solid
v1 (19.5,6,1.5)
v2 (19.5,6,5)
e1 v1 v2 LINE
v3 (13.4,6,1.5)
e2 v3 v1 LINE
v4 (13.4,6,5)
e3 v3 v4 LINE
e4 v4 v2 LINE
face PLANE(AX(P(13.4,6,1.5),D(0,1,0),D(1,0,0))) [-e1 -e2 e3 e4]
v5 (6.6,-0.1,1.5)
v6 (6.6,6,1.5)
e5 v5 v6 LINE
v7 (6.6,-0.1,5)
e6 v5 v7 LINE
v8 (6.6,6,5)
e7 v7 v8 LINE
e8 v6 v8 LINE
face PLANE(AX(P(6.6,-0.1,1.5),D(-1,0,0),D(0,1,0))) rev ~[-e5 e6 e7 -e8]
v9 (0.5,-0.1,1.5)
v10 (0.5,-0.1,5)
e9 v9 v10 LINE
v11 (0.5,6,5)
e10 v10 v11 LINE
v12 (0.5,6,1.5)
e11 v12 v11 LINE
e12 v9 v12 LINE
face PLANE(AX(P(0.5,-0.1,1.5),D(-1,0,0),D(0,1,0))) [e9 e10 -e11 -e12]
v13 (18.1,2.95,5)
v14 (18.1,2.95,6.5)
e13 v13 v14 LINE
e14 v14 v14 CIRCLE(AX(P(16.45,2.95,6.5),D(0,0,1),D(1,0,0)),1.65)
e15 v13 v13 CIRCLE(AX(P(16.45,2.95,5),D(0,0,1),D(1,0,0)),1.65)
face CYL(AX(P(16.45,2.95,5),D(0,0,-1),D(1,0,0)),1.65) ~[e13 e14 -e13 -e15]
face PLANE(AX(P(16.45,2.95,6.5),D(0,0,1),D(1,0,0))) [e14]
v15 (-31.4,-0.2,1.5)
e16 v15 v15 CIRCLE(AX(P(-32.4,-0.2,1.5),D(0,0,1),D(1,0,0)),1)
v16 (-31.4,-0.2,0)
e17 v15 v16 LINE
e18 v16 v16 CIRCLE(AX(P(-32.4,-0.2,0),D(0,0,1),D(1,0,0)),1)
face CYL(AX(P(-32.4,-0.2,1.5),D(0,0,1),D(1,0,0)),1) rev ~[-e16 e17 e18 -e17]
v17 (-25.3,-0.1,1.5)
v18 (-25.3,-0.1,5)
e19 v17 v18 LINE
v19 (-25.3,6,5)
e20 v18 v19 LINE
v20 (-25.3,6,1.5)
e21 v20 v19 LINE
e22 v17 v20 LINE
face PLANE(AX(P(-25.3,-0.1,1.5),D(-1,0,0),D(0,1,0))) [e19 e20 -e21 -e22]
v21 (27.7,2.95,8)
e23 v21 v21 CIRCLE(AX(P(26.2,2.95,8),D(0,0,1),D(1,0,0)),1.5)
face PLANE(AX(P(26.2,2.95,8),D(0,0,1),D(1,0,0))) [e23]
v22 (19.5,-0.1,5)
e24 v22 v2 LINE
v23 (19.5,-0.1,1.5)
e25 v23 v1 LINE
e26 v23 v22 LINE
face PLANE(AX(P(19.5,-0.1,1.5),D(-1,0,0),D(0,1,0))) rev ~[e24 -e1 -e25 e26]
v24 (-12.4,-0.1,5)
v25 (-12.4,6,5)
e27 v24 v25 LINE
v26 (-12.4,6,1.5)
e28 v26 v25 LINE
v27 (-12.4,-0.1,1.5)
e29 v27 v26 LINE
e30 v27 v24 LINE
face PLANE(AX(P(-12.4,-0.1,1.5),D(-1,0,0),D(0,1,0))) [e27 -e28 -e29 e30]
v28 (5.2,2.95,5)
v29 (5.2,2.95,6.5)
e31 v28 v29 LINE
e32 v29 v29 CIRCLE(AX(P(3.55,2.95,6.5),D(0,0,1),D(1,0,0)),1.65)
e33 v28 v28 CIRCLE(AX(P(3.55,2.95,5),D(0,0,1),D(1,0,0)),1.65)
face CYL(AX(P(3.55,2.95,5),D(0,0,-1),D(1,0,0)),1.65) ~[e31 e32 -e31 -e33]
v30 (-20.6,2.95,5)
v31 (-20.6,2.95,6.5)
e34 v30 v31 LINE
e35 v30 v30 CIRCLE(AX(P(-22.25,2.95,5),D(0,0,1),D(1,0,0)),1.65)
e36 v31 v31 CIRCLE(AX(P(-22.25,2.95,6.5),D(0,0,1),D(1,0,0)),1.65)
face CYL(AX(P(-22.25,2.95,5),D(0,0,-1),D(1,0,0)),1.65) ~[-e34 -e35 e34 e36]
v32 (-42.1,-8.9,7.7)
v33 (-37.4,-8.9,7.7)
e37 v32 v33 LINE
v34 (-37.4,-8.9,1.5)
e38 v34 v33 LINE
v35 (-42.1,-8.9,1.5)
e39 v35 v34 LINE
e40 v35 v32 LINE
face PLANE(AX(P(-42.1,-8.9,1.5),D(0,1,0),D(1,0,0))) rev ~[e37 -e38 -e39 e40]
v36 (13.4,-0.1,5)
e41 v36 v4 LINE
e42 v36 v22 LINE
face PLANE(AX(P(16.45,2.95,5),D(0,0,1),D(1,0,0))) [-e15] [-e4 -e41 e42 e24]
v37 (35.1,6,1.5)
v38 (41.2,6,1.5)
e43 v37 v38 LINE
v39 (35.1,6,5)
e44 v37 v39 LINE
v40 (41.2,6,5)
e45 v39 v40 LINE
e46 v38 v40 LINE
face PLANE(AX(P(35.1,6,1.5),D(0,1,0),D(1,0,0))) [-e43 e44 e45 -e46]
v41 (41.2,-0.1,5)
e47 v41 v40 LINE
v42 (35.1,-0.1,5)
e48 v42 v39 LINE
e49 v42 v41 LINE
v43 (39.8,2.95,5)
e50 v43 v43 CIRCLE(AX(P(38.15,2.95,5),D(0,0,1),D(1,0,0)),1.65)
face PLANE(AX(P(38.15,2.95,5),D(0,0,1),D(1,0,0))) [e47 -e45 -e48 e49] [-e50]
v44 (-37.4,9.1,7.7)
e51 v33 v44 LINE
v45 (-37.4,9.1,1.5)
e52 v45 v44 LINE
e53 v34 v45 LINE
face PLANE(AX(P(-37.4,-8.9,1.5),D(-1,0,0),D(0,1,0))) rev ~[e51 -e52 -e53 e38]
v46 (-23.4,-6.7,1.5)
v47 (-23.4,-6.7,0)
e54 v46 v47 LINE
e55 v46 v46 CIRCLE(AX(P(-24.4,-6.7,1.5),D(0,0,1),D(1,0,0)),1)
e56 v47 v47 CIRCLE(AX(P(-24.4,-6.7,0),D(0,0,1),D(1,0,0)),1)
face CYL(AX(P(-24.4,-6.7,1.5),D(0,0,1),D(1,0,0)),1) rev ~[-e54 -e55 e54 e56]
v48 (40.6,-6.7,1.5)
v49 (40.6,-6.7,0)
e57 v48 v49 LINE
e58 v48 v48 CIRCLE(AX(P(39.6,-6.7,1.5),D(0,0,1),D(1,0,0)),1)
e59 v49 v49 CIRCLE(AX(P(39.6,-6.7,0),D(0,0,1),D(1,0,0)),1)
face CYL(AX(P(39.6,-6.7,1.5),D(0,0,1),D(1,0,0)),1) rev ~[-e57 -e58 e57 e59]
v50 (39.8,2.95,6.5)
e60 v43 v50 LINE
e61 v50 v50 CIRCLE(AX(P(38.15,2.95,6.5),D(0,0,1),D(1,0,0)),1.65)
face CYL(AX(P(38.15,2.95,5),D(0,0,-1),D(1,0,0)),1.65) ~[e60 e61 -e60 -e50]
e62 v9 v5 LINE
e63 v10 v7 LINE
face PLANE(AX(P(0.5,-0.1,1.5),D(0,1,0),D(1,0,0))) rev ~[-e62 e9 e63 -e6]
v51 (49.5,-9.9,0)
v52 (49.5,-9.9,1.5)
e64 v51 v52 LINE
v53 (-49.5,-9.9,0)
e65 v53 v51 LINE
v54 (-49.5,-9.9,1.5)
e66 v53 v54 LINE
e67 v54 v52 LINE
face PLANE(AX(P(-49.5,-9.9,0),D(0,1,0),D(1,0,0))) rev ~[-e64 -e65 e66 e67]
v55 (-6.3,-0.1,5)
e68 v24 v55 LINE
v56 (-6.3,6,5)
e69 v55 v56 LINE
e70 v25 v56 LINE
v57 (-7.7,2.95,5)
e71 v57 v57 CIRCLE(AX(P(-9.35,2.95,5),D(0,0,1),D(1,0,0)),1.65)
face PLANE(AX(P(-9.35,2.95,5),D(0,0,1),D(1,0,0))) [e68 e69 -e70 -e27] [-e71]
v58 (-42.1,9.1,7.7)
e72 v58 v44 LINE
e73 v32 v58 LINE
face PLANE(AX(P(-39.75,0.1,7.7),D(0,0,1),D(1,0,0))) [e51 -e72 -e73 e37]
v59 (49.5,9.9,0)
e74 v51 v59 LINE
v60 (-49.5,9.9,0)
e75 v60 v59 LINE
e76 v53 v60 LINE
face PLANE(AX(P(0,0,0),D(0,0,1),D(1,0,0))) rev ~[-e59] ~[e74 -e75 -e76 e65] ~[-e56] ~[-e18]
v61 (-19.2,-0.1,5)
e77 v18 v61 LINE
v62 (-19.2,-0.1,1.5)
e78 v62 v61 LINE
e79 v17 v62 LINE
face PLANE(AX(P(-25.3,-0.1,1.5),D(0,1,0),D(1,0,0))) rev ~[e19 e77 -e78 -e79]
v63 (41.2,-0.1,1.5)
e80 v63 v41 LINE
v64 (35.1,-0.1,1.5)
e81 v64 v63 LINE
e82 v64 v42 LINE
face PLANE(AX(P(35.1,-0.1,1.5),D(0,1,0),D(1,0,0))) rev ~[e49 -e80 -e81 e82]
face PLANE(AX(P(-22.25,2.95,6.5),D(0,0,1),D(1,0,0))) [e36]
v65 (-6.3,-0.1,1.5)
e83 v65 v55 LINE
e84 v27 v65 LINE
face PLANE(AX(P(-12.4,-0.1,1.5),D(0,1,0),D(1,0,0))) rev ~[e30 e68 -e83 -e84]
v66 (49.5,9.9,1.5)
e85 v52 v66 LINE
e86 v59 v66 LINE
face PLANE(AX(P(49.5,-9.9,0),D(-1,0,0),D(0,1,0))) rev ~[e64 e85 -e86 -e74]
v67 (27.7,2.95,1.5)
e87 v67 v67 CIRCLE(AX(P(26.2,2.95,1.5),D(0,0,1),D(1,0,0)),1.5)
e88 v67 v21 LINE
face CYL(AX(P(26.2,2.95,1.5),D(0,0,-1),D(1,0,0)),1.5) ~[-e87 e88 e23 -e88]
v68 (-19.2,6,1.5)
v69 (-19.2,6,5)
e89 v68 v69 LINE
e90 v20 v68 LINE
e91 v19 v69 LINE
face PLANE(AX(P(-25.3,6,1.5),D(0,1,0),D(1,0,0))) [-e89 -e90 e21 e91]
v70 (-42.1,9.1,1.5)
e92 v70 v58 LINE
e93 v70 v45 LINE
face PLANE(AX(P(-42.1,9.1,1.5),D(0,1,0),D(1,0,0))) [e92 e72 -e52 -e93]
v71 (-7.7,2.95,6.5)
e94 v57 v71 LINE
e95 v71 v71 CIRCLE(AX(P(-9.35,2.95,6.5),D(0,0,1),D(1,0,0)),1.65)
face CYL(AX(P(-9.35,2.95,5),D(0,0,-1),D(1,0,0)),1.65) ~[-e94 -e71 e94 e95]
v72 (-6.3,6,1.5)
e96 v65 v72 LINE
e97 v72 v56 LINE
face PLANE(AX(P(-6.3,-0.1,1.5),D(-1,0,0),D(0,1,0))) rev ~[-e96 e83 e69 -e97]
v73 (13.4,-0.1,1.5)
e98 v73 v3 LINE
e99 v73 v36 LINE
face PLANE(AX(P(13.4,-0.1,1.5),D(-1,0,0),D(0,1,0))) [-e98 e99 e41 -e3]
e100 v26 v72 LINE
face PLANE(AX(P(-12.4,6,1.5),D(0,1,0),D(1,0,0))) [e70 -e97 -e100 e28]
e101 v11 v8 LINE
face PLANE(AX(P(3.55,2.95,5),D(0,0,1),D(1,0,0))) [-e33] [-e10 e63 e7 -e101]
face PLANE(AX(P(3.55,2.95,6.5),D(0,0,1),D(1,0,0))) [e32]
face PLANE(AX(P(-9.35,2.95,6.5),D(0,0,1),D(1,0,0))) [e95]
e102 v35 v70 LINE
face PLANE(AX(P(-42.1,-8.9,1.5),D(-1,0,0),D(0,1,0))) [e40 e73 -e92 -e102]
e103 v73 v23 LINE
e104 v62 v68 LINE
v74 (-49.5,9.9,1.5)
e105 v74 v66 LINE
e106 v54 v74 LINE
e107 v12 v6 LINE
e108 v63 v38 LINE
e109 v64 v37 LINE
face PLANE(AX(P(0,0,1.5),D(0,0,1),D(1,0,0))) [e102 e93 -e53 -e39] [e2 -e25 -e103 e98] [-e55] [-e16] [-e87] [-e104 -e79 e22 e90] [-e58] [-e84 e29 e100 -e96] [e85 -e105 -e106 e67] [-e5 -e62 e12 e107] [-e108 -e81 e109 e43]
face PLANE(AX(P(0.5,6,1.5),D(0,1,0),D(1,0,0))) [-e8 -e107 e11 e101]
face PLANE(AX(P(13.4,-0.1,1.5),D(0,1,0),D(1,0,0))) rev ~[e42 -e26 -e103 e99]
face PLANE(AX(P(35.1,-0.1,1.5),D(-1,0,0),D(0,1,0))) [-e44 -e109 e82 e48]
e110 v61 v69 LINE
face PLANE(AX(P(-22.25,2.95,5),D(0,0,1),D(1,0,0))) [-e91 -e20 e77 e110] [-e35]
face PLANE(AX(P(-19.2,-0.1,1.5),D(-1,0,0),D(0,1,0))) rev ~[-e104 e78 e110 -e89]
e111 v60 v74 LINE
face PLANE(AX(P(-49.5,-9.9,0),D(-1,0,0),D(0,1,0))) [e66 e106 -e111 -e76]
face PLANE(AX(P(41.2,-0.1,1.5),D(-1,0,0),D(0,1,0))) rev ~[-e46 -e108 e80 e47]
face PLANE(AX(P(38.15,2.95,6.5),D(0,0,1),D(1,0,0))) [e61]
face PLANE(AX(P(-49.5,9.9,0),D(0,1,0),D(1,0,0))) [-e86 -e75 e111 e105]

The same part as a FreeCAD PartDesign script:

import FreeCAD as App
import Part
import Sketcher
Q = App.Units.Quantity

doc = App.newDocument("Part")
params = doc.addObject("Spreadsheet::Sheet", "Params")
for row, (alias, value) in enumerate([
    ("sketch1_width", "99 mm"),
    ("sketch1_height", "19.8 mm"),
    ("pad1_length", "1.5 mm"),
    ("sketch2_width", "6.1 mm"),
    ("pad2_length", "3.5 mm"),
    ("sketch3_diameter", "3.3 mm"),
    ("pad3_length", "1.5 mm"),
    ("sketch4_diameter", "3 mm"),
    ("pad4_length", "6.5 mm"),
    ("sketch5_height", "18 mm"),
    ("sketch5_width", "4.7 mm"),
    ("pad5_length", "6.2 mm"),
    ("sketch6_diameter", "2 mm"),
], start=1):
    params.set(f"A{row}", alias)
    params.set(f"B{row}", "=" + value)
    params.setAlias(f"B{row}", alias)

body = doc.addObject("PartDesign::Body", "Body")

sketch1 = doc.addObject("Sketcher::SketchObject", "Sketch")
body.addObject(sketch1)
sketch1.AttachmentSupport = (doc.XY_Plane, [""])
sketch1.MapMode = "FlatFace"
sketch1.addGeometry(Part.LineSegment(App.Vector(-50, 10, 0), App.Vector(-50, -10, 0)), False)
sketch1.addGeometry(Part.LineSegment(App.Vector(-50, -10, 0), App.Vector(50, -10, 0)), False)
sketch1.addGeometry(Part.LineSegment(App.Vector(50, -10, 0), App.Vector(50, 10, 0)), False)
sketch1.addGeometry(Part.LineSegment(App.Vector(50, 10, 0), App.Vector(-50, 10, 0)), False)
sketch1.addConstraint(Sketcher.Constraint("Coincident", 0, 2, 1, 1))
sketch1.addConstraint(Sketcher.Constraint("Coincident", 1, 2, 2, 1))
sketch1.addConstraint(Sketcher.Constraint("Coincident", 2, 2, 3, 1))
sketch1.addConstraint(Sketcher.Constraint("Coincident", 3, 2, 0, 1))
sketch1.addConstraint(Sketcher.Constraint("Vertical", 0))
sketch1.addConstraint(Sketcher.Constraint("Horizontal", 1))
sketch1.addConstraint(Sketcher.Constraint("Vertical", 2))
sketch1.addConstraint(Sketcher.Constraint("Horizontal", 3))
sketch1.addConstraint(Sketcher.Constraint("Symmetric", 0, 2, 2, 2, -1, 1))
sketch1.addConstraint(Sketcher.Constraint("DistanceX", 1, 1, 1, 2, Q("99 mm")))
sketch1.addConstraint(Sketcher.Constraint("DistanceY", 0, 2, 0, 1, Q("19.8 mm")))
sketch1.setExpression("Constraints[9]", "Params.sketch1_width")
sketch1.setExpression("Constraints[10]", "Params.sketch1_height")
pad1 = doc.addObject("PartDesign::Pad", "Pad")
body.addObject(pad1)
pad1.Profile = sketch1
pad1.setExpression("Length", "Params.pad1_length")

sketch2 = doc.addObject("Sketcher::SketchObject", "Sketch001")
body.addObject(sketch2)
sketch2.AttachmentSupport = (doc.XY_Plane, [""])
sketch2.MapMode = "FlatFace"
sketch2.AttachmentOffset = App.Placement(App.Vector(0, 0, 1.5), App.Rotation())
sketch2.addGeometry(Part.LineSegment(App.Vector(35, 6, 0), App.Vector(35, 0, 0)), False)
sketch2.addGeometry(Part.LineSegment(App.Vector(35, 0, 0), App.Vector(41, 0, 0)), False)
sketch2.addGeometry(Part.LineSegment(App.Vector(41, 0, 0), App.Vector(41, 6, 0)), False)
sketch2.addGeometry(Part.LineSegment(App.Vector(41, 6, 0), App.Vector(35, 6, 0)), False)
sketch2.addGeometry(Part.LineSegment(App.Vector(13, 6, 0), App.Vector(13, 0, 0)), False)
sketch2.addGeometry(Part.LineSegment(App.Vector(13, 0, 0), App.Vector(20, 0, 0)), False)
sketch2.addGeometry(Part.LineSegment(App.Vector(20, 0, 0), App.Vector(20, 6, 0)), False)
sketch2.addGeometry(Part.LineSegment(App.Vector(20, 6, 0), App.Vector(13, 6, 0)), False)
sketch2.addGeometry(Part.LineSegment(App.Vector(0, 6, 0), App.Vector(0, 0, 0)), False)
sketch2.addGeometry(Part.LineSegment(App.Vector(0, 0, 0), App.Vector(7, 0, 0)), False)
sketch2.addGeometry(Part.LineSegment(App.Vector(7, 0, 0), App.Vector(7, 6, 0)), False)
sketch2.addGeometry(Part.LineSegment(App.Vector(7, 6, 0), App.Vector(0, 6, 0)), False)
sketch2.addGeometry(Part.LineSegment(App.Vector(-12, 6, 0), App.Vector(-12, 0, 0)), False)
sketch2.addGeometry(Part.LineSegment(App.Vector(-12, 0, 0), App.Vector(-6, 0, 0)), False)
sketch2.addGeometry(Part.LineSegment(App.Vector(-6, 0, 0), App.Vector(-6, 6, 0)), False)
sketch2.addGeometry(Part.LineSegment(App.Vector(-6, 6, 0), App.Vector(-12, 6, 0)), False)
sketch2.addGeometry(Part.LineSegment(App.Vector(-25, 6, 0), App.Vector(-25, 0, 0)), False)
sketch2.addGeometry(Part.LineSegment(App.Vector(-25, 0, 0), App.Vector(-19, 0, 0)), False)
sketch2.addGeometry(Part.LineSegment(App.Vector(-19, 0, 0), App.Vector(-19, 6, 0)), False)
sketch2.addGeometry(Part.LineSegment(App.Vector(-19, 6, 0), App.Vector(-25, 6, 0)), False)
sketch2.addConstraint(Sketcher.Constraint("Coincident", 0, 2, 1, 1))
sketch2.addConstraint(Sketcher.Constraint("Coincident", 1, 2, 2, 1))
sketch2.addConstraint(Sketcher.Constraint("Coincident", 2, 2, 3, 1))
sketch2.addConstraint(Sketcher.Constraint("Coincident", 3, 2, 0, 1))
sketch2.addConstraint(Sketcher.Constraint("Coincident", 4, 2, 5, 1))
sketch2.addConstraint(Sketcher.Constraint("Coincident", 5, 2, 6, 1))
sketch2.addConstraint(Sketcher.Constraint("Coincident", 6, 2, 7, 1))
sketch2.addConstraint(Sketcher.Constraint("Coincident", 7, 2, 4, 1))
sketch2.addConstraint(Sketcher.Constraint("Coincident", 8, 2, 9, 1))
sketch2.addConstraint(Sketcher.Constraint("Coincident", 9, 2, 10, 1))
sketch2.addConstraint(Sketcher.Constraint("Coincident", 10, 2, 11, 1))
sketch2.addConstraint(Sketcher.Constraint("Coincident", 11, 2, 8, 1))
sketch2.addConstraint(Sketcher.Constraint("Coincident", 12, 2, 13, 1))
sketch2.addConstraint(Sketcher.Constraint("Coincident", 13, 2, 14, 1))
sketch2.addConstraint(Sketcher.Constraint("Coincident", 14, 2, 15, 1))
sketch2.addConstraint(Sketcher.Constraint("Coincident", 15, 2, 12, 1))
sketch2.addConstraint(Sketcher.Constraint("Coincident", 16, 2, 17, 1))
sketch2.addConstraint(Sketcher.Constraint("Coincident", 17, 2, 18, 1))
sketch2.addConstraint(Sketcher.Constraint("Coincident", 18, 2, 19, 1))
sketch2.addConstraint(Sketcher.Constraint("Coincident", 19, 2, 16, 1))
sketch2.addConstraint(Sketcher.Constraint("Vertical", 0))
sketch2.addConstraint(Sketcher.Constraint("Horizontal", 1))
sketch2.addConstraint(Sketcher.Constraint("Vertical", 2))
sketch2.addConstraint(Sketcher.Constraint("Horizontal", 3))
sketch2.addConstraint(Sketcher.Constraint("Vertical", 4))
sketch2.addConstraint(Sketcher.Constraint("Horizontal", 5))
sketch2.addConstraint(Sketcher.Constraint("Vertical", 6))
sketch2.addConstraint(Sketcher.Constraint("Horizontal", 7))
sketch2.addConstraint(Sketcher.Constraint("Vertical", 8))
sketch2.addConstraint(Sketcher.Constraint("Horizontal", 9))
sketch2.addConstraint(Sketcher.Constraint("Vertical", 10))
sketch2.addConstraint(Sketcher.Constraint("Horizontal", 11))
sketch2.addConstraint(Sketcher.Constraint("Vertical", 12))
sketch2.addConstraint(Sketcher.Constraint("Horizontal", 13))
sketch2.addConstraint(Sketcher.Constraint("Vertical", 14))
sketch2.addConstraint(Sketcher.Constraint("Horizontal", 15))
sketch2.addConstraint(Sketcher.Constraint("Vertical", 16))
sketch2.addConstraint(Sketcher.Constraint("Horizontal", 17))
sketch2.addConstraint(Sketcher.Constraint("Vertical", 18))
sketch2.addConstraint(Sketcher.Constraint("Horizontal", 19))
sketch2.addConstraint(Sketcher.Constraint("Horizontal", 1, 2, 4, 2))
sketch2.addConstraint(Sketcher.Constraint("Horizontal", 3, 2, 6, 2))
sketch2.addConstraint(Sketcher.Constraint("Horizontal", 5, 2, 8, 2))
sketch2.addConstraint(Sketcher.Constraint("Horizontal", 7, 2, 10, 2))
sketch2.addConstraint(Sketcher.Constraint("Horizontal", 9, 2, 12, 2))
sketch2.addConstraint(Sketcher.Constraint("Horizontal", 11, 2, 14, 2))
sketch2.addConstraint(Sketcher.Constraint("Horizontal", 13, 2, 16, 2))
sketch2.addConstraint(Sketcher.Constraint("Horizontal", 15, 2, 18, 2))
sketch2.addConstraint(Sketcher.Constraint("Equal", 3, 5))
sketch2.addConstraint(Sketcher.Constraint("Equal", 7, 9))
sketch2.addConstraint(Sketcher.Constraint("Equal", 11, 13))
sketch2.addConstraint(Sketcher.Constraint("Equal", 15, 17))
sketch2.addConstraint(Sketcher.Constraint("Equal", 19, 0))
sketch2.addConstraint(Sketcher.Constraint("DistanceX", 1, 1, 1, 2, Q("6.1 mm")))
sketch2.addConstraint(Sketcher.Constraint("DistanceY", -1, 1, 2, 2, Q("6 mm")))
sketch2.addConstraint(Sketcher.Constraint("DistanceX", 8, 2, 5, 2, Q("19 mm")))
sketch2.addConstraint(Sketcher.Constraint("DistanceX", 12, 2, 9, 2, Q("19 mm")))
sketch2.addConstraint(Sketcher.Constraint("DistanceX", 16, 2, 13, 2, Q("19 mm")))
sketch2.addConstraint(Sketcher.Constraint("DistanceX", -1, 1, 0, 2, Q("35.1 mm")))
sketch2.addConstraint(Sketcher.Constraint("DistanceX", -1, 1, 4, 2, Q("13.4 mm")))
sketch2.setExpression("Constraints[53]", "Params.sketch2_width")
pad2 = doc.addObject("PartDesign::Pad", "Pad001")
body.addObject(pad2)
pad2.Profile = sketch2
pad2.setExpression("Length", "Params.pad2_length")

sketch3 = doc.addObject("Sketcher::SketchObject", "Sketch002")
body.addObject(sketch3)
sketch3.AttachmentSupport = (doc.XY_Plane, [""])
sketch3.MapMode = "FlatFace"
sketch3.AttachmentOffset = App.Placement(App.Vector(0, 0, 5), App.Rotation())
sketch3.addGeometry(Part.Circle(App.Vector(-22.2, 3, 0), App.Vector(0, 0, 1), 1.6), False)
sketch3.addGeometry(Part.Circle(App.Vector(-9.3, 3, 0), App.Vector(0, 0, 1), 1.6), False)
sketch3.addGeometry(Part.Circle(App.Vector(3.5, 3, 0), App.Vector(0, 0, 1), 1.6), False)
sketch3.addGeometry(Part.Circle(App.Vector(16.4, 3, 0), App.Vector(0, 0, 1), 1.6), False)
sketch3.addGeometry(Part.Circle(App.Vector(38.1, 3, 0), App.Vector(0, 0, 1), 1.6), False)
sketch3.addConstraint(Sketcher.Constraint("Equal", 0, 1))
sketch3.addConstraint(Sketcher.Constraint("Equal", 1, 2))
sketch3.addConstraint(Sketcher.Constraint("Equal", 2, 3))
sketch3.addConstraint(Sketcher.Constraint("Equal", 3, 4))
sketch3.addConstraint(Sketcher.Constraint("Horizontal", 0, 3, 1, 3))
sketch3.addConstraint(Sketcher.Constraint("Horizontal", 1, 3, 2, 3))
sketch3.addConstraint(Sketcher.Constraint("Horizontal", 2, 3, 3, 3))
sketch3.addConstraint(Sketcher.Constraint("Horizontal", 3, 3, 4, 3))
sketch3.addConstraint(Sketcher.Constraint("Diameter", 0, Q("3.3 mm")))
sketch3.addConstraint(Sketcher.Constraint("DistanceX", 0, 3, 1, 3, Q("12.9 mm")))
sketch3.addConstraint(Sketcher.Constraint("DistanceX", 1, 3, 2, 3, Q("12.9 mm")))
sketch3.addConstraint(Sketcher.Constraint("DistanceX", 2, 3, 3, 3, Q("12.9 mm")))
sketch3.addConstraint(Sketcher.Constraint("DistanceX", 3, 3, 4, 3, Q("21.7 mm")))
sketch3.addConstraint(Sketcher.Constraint("DistanceX", 0, 3, -1, 1, Q("22.25 mm")))
sketch3.addConstraint(Sketcher.Constraint("DistanceY", -1, 1, 0, 3, Q("2.95 mm")))
sketch3.setExpression("Constraints[8]", "Params.sketch3_diameter")
pad3 = doc.addObject("PartDesign::Pad", "Pad002")
body.addObject(pad3)
pad3.Profile = sketch3
pad3.setExpression("Length", "Params.pad3_length")

sketch4 = doc.addObject("Sketcher::SketchObject", "Sketch003")
body.addObject(sketch4)
sketch4.AttachmentSupport = (doc.XY_Plane, [""])
sketch4.MapMode = "FlatFace"
sketch4.AttachmentOffset = App.Placement(App.Vector(0, 0, 1.5), App.Rotation())
sketch4.addGeometry(Part.Circle(App.Vector(26.2, 3, 0), App.Vector(0, 0, 1), 1.5), False)
sketch4.addConstraint(Sketcher.Constraint("Diameter", 0, Q("3 mm")))
sketch4.addConstraint(Sketcher.Constraint("DistanceX", -1, 1, 0, 3, Q("26.2 mm")))
sketch4.addConstraint(Sketcher.Constraint("DistanceY", -1, 1, 0, 3, Q("2.95 mm")))
sketch4.setExpression("Constraints[0]", "Params.sketch4_diameter")
pad4 = doc.addObject("PartDesign::Pad", "Pad003")
body.addObject(pad4)
pad4.Profile = sketch4
pad4.setExpression("Length", "Params.pad4_length")

sketch5 = doc.addObject("Sketcher::SketchObject", "Sketch004")
body.addObject(sketch5)
sketch5.AttachmentSupport = (doc.XY_Plane, [""])
sketch5.MapMode = "FlatFace"
sketch5.AttachmentOffset = App.Placement(App.Vector(0, 0, 1.5), App.Rotation())
sketch5.addGeometry(Part.LineSegment(App.Vector(-42.1, 9.1, 0), App.Vector(-42.1, -8.9, 0)), False)
sketch5.addGeometry(Part.LineSegment(App.Vector(-42.1, -8.9, 0), App.Vector(-37.4, -8.9, 0)), False)
sketch5.addGeometry(Part.LineSegment(App.Vector(-37.4, -8.9, 0), App.Vector(-37.4, 9.1, 0)), False)
sketch5.addGeometry(Part.LineSegment(App.Vector(-37.4, 9.1, 0), App.Vector(-42.1, 9.1, 0)), False)
sketch5.addConstraint(Sketcher.Constraint("Coincident", 0, 2, 1, 1))
sketch5.addConstraint(Sketcher.Constraint("Coincident", 1, 2, 2, 1))
sketch5.addConstraint(Sketcher.Constraint("Coincident", 2, 2, 3, 1))
sketch5.addConstraint(Sketcher.Constraint("Coincident", 3, 2, 0, 1))
sketch5.addConstraint(Sketcher.Constraint("Vertical", 0))
sketch5.addConstraint(Sketcher.Constraint("Horizontal", 1))
sketch5.addConstraint(Sketcher.Constraint("Vertical", 2))
sketch5.addConstraint(Sketcher.Constraint("Horizontal", 3))
sketch5.addConstraint(Sketcher.Constraint("DistanceY", 0, 2, 0, 1, Q("18 mm")))
sketch5.addConstraint(Sketcher.Constraint("DistanceX", 1, 1, 1, 2, Q("4.7 mm")))
sketch5.addConstraint(Sketcher.Constraint("DistanceX", 0, 2, -1, 1, Q("42.1 mm")))
sketch5.addConstraint(Sketcher.Constraint("DistanceY", 0, 2, -1, 1, Q("8.9 mm")))
sketch5.setExpression("Constraints[8]", "Params.sketch5_height")
sketch5.setExpression("Constraints[9]", "Params.sketch5_width")
pad5 = doc.addObject("PartDesign::Pad", "Pad004")
body.addObject(pad5)
pad5.Profile = sketch5
pad5.setExpression("Length", "Params.pad5_length")

sketch6 = doc.addObject("Sketcher::SketchObject", "Sketch005")
body.addObject(sketch6)
sketch6.AttachmentSupport = (doc.XY_Plane, [""])
sketch6.MapMode = "FlatFace"
sketch6.AttachmentOffset = App.Placement(App.Vector(0, 0, 1.5), App.Rotation())
sketch6.addGeometry(Part.Circle(App.Vector(-24.4, -6.7, 0), App.Vector(0, 0, 1), 1), False)
sketch6.addGeometry(Part.Circle(App.Vector(-32.4, -0.2, 0), App.Vector(0, 0, 1), 1), False)
sketch6.addGeometry(Part.Circle(App.Vector(39.6, -6.7, 0), App.Vector(0, 0, 1), 1), False)
sketch6.addConstraint(Sketcher.Constraint("Equal", 0, 1))
sketch6.addConstraint(Sketcher.Constraint("Equal", 1, 2))
sketch6.addConstraint(Sketcher.Constraint("Horizontal", 0, 3, 2, 3))
sketch6.addConstraint(Sketcher.Constraint("Diameter", 0, Q("2 mm")))
sketch6.addConstraint(Sketcher.Constraint("DistanceX", 1, 3, 0, 3, Q("8 mm")))
sketch6.addConstraint(Sketcher.Constraint("DistanceX", 0, 3, 2, 3, Q("64 mm")))
sketch6.addConstraint(Sketcher.Constraint("DistanceX", 0, 3, -1, 1, Q("24.4 mm")))
sketch6.addConstraint(Sketcher.Constraint("DistanceY", 0, 3, -1, 1, Q("6.7 mm")))
sketch6.addConstraint(Sketcher.Constraint("DistanceY", 1, 3, -1, 1, Q("0.2 mm")))
sketch6.setExpression("Constraints[3]", "Params.sketch6_diameter")
pocket1 = doc.addObject("PartDesign::Pocket", "Pocket")
body.addObject(pocket1)
pocket1.Profile = sketch6
pocket1.Type = "ThroughAll"

doc.recompute()
